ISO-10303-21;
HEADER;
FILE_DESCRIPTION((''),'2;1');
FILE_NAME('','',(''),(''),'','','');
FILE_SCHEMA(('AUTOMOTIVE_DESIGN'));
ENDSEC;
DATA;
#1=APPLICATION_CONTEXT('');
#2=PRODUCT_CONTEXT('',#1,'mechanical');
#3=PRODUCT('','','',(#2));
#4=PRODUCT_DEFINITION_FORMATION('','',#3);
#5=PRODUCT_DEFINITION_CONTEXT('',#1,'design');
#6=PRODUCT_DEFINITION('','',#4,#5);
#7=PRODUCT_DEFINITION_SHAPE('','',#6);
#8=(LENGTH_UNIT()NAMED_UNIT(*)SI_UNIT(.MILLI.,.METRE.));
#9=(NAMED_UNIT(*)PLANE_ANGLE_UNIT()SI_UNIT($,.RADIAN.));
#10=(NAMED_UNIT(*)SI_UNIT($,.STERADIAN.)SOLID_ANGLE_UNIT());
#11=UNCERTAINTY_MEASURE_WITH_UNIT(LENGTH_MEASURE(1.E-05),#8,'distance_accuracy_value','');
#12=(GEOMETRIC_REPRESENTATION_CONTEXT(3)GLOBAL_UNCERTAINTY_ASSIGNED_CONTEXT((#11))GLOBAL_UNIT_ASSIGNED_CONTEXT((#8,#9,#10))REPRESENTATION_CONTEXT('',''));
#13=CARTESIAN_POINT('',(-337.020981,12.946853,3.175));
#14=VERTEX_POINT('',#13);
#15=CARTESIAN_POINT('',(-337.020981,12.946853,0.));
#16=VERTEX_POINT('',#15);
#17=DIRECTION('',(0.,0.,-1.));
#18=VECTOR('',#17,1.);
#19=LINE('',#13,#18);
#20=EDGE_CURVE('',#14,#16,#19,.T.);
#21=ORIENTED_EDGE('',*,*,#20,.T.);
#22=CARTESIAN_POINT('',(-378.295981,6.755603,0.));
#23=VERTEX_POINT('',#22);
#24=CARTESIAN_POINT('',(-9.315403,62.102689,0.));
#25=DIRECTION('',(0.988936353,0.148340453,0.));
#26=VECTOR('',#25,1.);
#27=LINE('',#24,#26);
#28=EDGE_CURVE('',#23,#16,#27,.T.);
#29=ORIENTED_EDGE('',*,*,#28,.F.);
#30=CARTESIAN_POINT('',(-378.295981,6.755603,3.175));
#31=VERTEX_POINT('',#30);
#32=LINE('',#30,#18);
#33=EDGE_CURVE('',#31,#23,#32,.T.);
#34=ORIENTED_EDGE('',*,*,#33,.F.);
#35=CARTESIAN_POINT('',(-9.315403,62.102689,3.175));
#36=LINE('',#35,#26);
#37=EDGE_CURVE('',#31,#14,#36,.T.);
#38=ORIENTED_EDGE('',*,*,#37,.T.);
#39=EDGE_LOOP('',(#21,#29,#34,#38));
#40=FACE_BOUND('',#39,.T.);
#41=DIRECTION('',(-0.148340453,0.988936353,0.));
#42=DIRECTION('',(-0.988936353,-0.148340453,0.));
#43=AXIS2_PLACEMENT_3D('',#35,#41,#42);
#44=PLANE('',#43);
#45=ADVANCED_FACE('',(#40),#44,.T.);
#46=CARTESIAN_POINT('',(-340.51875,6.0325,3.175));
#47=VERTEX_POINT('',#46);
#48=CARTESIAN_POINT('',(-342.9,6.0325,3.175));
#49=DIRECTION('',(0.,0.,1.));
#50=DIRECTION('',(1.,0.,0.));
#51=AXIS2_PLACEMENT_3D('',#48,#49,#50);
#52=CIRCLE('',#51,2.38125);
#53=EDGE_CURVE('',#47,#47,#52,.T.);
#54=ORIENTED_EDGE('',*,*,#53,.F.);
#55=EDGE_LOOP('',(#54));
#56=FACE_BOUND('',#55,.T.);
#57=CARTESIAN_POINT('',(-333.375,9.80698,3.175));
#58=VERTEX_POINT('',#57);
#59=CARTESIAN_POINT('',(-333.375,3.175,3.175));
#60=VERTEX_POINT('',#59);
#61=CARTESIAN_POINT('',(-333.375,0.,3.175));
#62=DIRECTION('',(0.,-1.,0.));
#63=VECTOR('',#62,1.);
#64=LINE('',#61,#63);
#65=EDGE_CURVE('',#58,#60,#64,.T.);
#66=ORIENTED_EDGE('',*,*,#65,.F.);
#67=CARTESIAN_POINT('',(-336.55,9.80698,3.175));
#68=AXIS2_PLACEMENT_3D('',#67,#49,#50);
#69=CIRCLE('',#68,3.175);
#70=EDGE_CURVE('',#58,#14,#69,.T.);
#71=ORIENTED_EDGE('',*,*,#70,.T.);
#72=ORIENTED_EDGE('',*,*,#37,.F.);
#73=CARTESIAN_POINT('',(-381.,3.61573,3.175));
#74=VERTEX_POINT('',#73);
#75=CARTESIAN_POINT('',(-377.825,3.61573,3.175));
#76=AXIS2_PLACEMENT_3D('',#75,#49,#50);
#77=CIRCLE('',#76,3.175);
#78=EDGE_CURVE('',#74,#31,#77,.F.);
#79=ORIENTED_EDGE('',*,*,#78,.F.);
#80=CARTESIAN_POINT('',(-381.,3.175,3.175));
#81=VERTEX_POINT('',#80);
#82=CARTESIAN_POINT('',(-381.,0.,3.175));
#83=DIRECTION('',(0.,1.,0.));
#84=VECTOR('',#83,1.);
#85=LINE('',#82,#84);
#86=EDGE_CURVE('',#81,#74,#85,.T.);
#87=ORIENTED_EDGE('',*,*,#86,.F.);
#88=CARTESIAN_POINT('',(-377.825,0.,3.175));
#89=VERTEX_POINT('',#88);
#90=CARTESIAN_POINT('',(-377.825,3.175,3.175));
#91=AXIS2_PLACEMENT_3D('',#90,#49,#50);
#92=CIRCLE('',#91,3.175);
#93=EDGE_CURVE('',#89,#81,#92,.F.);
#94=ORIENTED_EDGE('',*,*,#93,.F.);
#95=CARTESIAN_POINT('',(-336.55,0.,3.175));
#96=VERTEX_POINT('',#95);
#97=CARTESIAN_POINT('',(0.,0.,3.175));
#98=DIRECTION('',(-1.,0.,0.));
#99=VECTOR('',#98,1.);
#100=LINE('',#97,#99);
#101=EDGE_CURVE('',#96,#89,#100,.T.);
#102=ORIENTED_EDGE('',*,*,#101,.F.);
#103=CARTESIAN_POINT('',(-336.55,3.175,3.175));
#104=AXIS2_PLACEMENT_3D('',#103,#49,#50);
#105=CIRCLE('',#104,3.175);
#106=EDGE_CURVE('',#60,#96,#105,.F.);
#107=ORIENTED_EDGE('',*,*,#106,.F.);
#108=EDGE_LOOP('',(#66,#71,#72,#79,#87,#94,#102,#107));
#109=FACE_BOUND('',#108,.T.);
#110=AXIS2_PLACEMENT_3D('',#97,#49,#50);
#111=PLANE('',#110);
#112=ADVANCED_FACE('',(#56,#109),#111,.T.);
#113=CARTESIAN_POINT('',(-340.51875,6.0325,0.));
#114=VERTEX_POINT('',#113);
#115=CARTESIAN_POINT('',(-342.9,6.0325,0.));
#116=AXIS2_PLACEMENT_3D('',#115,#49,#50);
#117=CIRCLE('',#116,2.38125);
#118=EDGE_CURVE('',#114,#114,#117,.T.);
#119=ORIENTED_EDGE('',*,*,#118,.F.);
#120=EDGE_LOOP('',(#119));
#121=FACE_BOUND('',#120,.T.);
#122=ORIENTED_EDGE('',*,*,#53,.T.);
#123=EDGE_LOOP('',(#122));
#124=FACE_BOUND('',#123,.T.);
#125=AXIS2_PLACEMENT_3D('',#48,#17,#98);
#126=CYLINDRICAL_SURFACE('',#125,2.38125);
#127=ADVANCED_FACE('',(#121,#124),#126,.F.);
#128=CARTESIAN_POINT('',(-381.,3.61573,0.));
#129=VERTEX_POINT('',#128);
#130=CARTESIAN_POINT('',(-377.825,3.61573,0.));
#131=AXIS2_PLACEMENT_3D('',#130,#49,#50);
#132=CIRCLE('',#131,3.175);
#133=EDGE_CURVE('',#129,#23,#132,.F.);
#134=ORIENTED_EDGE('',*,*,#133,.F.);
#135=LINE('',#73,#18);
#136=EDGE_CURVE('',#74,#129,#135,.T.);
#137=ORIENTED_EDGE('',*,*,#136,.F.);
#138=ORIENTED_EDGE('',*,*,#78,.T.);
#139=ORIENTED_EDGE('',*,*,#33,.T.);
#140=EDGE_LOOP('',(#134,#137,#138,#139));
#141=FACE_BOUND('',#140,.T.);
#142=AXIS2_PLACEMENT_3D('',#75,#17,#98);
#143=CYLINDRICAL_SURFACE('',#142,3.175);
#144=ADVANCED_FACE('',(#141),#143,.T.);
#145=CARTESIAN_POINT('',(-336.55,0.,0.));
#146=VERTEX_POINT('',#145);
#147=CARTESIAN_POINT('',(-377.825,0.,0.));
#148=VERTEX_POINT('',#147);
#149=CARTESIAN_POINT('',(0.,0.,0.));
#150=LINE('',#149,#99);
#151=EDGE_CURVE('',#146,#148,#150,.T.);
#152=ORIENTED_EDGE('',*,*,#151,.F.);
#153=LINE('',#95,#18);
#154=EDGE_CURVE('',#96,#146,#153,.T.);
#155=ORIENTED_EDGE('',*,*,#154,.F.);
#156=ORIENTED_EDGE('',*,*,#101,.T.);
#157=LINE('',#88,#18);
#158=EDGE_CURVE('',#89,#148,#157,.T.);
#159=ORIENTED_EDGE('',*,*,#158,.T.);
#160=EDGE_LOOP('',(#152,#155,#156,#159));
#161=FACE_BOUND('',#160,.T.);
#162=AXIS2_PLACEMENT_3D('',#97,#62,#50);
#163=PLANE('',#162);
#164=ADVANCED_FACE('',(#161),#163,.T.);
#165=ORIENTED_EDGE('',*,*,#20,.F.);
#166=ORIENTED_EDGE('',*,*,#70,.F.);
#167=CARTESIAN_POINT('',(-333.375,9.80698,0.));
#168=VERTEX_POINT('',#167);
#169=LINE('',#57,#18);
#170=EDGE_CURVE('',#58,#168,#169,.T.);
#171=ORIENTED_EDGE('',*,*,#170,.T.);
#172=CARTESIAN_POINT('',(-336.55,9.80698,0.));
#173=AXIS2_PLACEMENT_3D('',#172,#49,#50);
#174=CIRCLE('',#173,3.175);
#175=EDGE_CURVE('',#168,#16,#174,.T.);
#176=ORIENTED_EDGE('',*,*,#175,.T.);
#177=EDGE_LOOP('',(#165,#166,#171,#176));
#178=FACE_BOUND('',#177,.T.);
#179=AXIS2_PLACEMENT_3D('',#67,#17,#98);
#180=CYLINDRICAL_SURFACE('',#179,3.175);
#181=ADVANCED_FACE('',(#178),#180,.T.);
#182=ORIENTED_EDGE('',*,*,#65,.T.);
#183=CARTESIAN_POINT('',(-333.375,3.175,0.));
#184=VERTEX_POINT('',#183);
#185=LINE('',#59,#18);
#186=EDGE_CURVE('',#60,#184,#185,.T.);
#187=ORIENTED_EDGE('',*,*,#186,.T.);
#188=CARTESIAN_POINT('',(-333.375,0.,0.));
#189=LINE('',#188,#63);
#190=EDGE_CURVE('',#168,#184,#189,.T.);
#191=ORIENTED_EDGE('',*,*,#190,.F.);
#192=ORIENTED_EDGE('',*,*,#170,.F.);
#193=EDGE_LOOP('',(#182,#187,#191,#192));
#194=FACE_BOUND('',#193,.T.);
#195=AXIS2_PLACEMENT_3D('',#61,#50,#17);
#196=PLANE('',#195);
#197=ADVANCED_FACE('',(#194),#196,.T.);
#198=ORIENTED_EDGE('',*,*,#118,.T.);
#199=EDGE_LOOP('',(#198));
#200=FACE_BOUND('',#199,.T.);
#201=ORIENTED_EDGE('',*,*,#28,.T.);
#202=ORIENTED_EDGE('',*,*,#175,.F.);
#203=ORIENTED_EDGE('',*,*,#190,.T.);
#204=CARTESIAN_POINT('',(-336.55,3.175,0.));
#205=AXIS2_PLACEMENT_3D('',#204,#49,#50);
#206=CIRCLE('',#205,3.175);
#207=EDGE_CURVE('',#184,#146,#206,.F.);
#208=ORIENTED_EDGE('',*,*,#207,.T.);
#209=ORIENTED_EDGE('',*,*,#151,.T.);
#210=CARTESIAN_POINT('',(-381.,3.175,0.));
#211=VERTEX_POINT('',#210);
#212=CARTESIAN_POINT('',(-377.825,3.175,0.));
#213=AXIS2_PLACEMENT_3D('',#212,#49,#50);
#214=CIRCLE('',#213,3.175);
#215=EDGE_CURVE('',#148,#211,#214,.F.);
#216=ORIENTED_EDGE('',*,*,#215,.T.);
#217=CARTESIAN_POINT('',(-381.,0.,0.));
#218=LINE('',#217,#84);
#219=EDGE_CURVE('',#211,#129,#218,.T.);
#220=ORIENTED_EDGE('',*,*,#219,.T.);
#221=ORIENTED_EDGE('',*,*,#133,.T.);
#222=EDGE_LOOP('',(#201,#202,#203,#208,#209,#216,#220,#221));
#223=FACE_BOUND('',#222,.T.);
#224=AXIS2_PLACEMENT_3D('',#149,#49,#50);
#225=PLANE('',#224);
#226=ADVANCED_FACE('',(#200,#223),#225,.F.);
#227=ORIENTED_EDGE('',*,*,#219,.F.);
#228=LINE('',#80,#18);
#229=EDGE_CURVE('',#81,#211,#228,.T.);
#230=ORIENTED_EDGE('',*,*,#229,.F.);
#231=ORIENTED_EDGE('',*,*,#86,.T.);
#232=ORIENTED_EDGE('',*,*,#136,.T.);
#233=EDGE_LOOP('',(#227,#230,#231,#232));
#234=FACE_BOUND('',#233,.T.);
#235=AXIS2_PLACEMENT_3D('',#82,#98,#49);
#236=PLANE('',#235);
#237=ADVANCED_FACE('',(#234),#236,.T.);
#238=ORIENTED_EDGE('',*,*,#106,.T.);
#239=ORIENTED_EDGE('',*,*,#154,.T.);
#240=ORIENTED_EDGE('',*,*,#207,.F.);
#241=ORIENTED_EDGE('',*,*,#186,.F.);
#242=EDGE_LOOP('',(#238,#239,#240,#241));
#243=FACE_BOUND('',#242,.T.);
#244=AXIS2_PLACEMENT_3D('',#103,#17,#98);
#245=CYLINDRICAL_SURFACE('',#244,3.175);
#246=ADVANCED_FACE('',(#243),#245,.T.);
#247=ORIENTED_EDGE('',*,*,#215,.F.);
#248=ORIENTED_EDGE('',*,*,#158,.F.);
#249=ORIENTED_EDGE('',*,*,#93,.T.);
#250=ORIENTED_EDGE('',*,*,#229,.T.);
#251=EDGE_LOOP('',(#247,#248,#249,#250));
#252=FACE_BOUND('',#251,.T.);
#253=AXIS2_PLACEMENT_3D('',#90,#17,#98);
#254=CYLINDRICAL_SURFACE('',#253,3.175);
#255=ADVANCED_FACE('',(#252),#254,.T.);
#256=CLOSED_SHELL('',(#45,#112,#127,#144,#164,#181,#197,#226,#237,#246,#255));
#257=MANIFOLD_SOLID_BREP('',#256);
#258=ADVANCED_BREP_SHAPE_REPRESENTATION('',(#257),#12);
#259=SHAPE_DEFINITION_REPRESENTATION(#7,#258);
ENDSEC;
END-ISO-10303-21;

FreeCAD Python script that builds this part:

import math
import FreeCAD as App
import Part
import Sketcher
Q = App.Units.Quantity

doc = App.newDocument("Part")
params = doc.addObject("Spreadsheet::Sheet", "Params")
for row, (alias, value) in enumerate([
    ("sketch1_radius", "0.125 in"),
    ("sketch1_radius2", "0.09375 in"),
    ("sketch1_width", "1.625 in"),
    ("pad1_length", "0.125 in"),
], start=1):
    params.set(f"A{row}", alias)
    params.set(f"B{row}", "=" + value)
    params.setAlias(f"B{row}", alias)

body = doc.addObject("PartDesign::Body", "Body")

sketch1 = body.newObject("Sketcher::SketchObject", "Sketch")
sketch1.AttachmentSupport = (doc.getObject("XY_Plane"), [""])
sketch1.MapMode = "FlatFace"
sketch1.addGeometry(Part.LineSegment(App.Vector(-381, 3.62, 0), App.Vector(-381, 3.17, 0)), False)
sketch1.addGeometry(Part.ArcOfCircle(Part.Circle(App.Vector(-377.82, 3.18, 0), App.Vector(0, 0, 1), 3.18), math.radians(-180), math.radians(-90)), False)
sketch1.addGeometry(Part.LineSegment(App.Vector(-377.82, 0, 0), App.Vector(-336.55, 0, 0)), False)
sketch1.addGeometry(Part.ArcOfCircle(Part.Circle(App.Vector(-336.55, 3.18, 0), App.Vector(0, 0, 1), 3.18), math.radians(-90), math.radians(0)), False)
sketch1.addGeometry(Part.LineSegment(App.Vector(-333.38, 3.17, 0), App.Vector(-333.38, 9.81, 0)), False)
sketch1.addGeometry(Part.ArcOfCircle(Part.Circle(App.Vector(-336.55, 9.81, 0), App.Vector(0, 0, 1), 3.17), math.radians(0), math.radians(99)), False)
sketch1.addGeometry(Part.LineSegment(App.Vector(-337.02, 12.95, 0), App.Vector(-342.9, 12.06, 0)), False)
sketch1.addGeometry(Part.LineSegment(App.Vector(-342.9, 12.06, 0), App.Vector(-378.3, 6.76, 0)), False)
sketch1.addGeometry(Part.ArcOfCircle(Part.Circle(App.Vector(-377.82, 3.62, 0), App.Vector(0, 0, 1), 3.17), math.radians(99), math.radians(180)), False)
sketch1.addGeometry(Part.ArcOfCircle(Part.Circle(App.Vector(-342.9, 6.03, 0), App.Vector(0, 0, 1), 2.38), math.radians(90), math.radians(270)), False)
sketch1.addGeometry(Part.ArcOfCircle(Part.Circle(App.Vector(-342.9, 6.03, 0), App.Vector(0, 0, 1), 2.38), math.radians(0), math.radians(90)), False)
sketch1.addGeometry(Part.ArcOfCircle(Part.Circle(App.Vector(-342.9, 6.03, 0), App.Vector(0, 0, 1), 2.38), math.radians(-90), math.radians(0)), False)
sketch1.addConstraint(Sketcher.Constraint("Tangent", 0, 2, 1, 1))
sketch1.addConstraint(Sketcher.Constraint("Tangent", 1, 2, 2, 1))
sketch1.addConstraint(Sketcher.Constraint("Tangent", 2, 2, 3, 1))
sketch1.addConstraint(Sketcher.Constraint("Tangent", 3, 2, 4, 1))
sketch1.addConstraint(Sketcher.Constraint("Tangent", 4, 2, 5, 1))
sketch1.addConstraint(Sketcher.Constraint("Tangent", 5, 2, 6, 1))
sketch1.addConstraint(Sketcher.Constraint("Coincident", 6, 2, 7, 1))
sketch1.addConstraint(Sketcher.Constraint("Tangent", 7, 2, 8, 1))
sketch1.addConstraint(Sketcher.Constraint("Tangent", 8, 2, 0, 1))
sketch1.addConstraint(Sketcher.Constraint("Tangent", 9, 1, 10, 2))
sketch1.addConstraint(Sketcher.Constraint("Tangent", 10, 1, 11, 2))
sketch1.addConstraint(Sketcher.Constraint("Tangent", 11, 1, 9, 2))
sketch1.addConstraint(Sketcher.Constraint("Vertical", 0))
sketch1.addConstraint(Sketcher.Constraint("Horizontal", 2))
sketch1.addConstraint(Sketcher.Constraint("Vertical", 4))
sketch1.addConstraint(Sketcher.Constraint("Equal", 1, 3))
sketch1.addConstraint(Sketcher.Constraint("Equal", 3, 5))
sketch1.addConstraint(Sketcher.Constraint("Equal", 5, 8))
sketch1.addConstraint(Sketcher.Constraint("PointOnObject", 1, 2, -1))
sketch1.addConstraint(Sketcher.Constraint("Parallel", 6, 7))
sketch1.addConstraint(Sketcher.Constraint("Horizontal", 11, 3, 10, 1))
sketch1.addConstraint(Sketcher.Constraint("Vertical", 11, 3, 6, 2))
sketch1.addConstraint(Sketcher.Constraint("Vertical", 6, 2, 9, 1))
sketch1.addConstraint(Sketcher.Constraint("Vertical", 9, 1, 11, 1))
sketch1.addConstraint(Sketcher.Constraint("DistanceX", 0, 2, -1, 1, Q("15 in")))
sketch1.addConstraint(Sketcher.Constraint("Radius", 1, Q("0.125 in")))
sketch1.addConstraint(Sketcher.Constraint("Radius", 9, Q("0.09375 in")))
sketch1.addConstraint(Sketcher.Constraint("DistanceX", 9, 3, -1, 1, Q("13.5 in")))
sketch1.addConstraint(Sketcher.Constraint("DistanceX", 2, 1, 2, 2, Q("1.625 in")))
sketch1.addConstraint(Sketcher.Constraint("DistanceY", -1, 1, 6, 2, Q("0.475 in")))
sketch1.addConstraint(Sketcher.Constraint("DistanceY", -1, 1, 9, 3, Q("0.2375 in")))
sketch1.addConstraint(Sketcher.Constraint("DistanceY", 0, 2, 0, 1, Q("0.44073 mm")))
sketch1.setExpression("Constraints[25]", "Params.sketch1_radius")
sketch1.setExpression("Constraints[26]", "Params.sketch1_radius2")
sketch1.setExpression("Constraints[28]", "Params.sketch1_width")
pad1 = body.newObject("PartDesign::Pad", "Pad")
pad1.Profile = sketch1
pad1.setExpression("Length", "Params.pad1_length")

doc.recompute()
